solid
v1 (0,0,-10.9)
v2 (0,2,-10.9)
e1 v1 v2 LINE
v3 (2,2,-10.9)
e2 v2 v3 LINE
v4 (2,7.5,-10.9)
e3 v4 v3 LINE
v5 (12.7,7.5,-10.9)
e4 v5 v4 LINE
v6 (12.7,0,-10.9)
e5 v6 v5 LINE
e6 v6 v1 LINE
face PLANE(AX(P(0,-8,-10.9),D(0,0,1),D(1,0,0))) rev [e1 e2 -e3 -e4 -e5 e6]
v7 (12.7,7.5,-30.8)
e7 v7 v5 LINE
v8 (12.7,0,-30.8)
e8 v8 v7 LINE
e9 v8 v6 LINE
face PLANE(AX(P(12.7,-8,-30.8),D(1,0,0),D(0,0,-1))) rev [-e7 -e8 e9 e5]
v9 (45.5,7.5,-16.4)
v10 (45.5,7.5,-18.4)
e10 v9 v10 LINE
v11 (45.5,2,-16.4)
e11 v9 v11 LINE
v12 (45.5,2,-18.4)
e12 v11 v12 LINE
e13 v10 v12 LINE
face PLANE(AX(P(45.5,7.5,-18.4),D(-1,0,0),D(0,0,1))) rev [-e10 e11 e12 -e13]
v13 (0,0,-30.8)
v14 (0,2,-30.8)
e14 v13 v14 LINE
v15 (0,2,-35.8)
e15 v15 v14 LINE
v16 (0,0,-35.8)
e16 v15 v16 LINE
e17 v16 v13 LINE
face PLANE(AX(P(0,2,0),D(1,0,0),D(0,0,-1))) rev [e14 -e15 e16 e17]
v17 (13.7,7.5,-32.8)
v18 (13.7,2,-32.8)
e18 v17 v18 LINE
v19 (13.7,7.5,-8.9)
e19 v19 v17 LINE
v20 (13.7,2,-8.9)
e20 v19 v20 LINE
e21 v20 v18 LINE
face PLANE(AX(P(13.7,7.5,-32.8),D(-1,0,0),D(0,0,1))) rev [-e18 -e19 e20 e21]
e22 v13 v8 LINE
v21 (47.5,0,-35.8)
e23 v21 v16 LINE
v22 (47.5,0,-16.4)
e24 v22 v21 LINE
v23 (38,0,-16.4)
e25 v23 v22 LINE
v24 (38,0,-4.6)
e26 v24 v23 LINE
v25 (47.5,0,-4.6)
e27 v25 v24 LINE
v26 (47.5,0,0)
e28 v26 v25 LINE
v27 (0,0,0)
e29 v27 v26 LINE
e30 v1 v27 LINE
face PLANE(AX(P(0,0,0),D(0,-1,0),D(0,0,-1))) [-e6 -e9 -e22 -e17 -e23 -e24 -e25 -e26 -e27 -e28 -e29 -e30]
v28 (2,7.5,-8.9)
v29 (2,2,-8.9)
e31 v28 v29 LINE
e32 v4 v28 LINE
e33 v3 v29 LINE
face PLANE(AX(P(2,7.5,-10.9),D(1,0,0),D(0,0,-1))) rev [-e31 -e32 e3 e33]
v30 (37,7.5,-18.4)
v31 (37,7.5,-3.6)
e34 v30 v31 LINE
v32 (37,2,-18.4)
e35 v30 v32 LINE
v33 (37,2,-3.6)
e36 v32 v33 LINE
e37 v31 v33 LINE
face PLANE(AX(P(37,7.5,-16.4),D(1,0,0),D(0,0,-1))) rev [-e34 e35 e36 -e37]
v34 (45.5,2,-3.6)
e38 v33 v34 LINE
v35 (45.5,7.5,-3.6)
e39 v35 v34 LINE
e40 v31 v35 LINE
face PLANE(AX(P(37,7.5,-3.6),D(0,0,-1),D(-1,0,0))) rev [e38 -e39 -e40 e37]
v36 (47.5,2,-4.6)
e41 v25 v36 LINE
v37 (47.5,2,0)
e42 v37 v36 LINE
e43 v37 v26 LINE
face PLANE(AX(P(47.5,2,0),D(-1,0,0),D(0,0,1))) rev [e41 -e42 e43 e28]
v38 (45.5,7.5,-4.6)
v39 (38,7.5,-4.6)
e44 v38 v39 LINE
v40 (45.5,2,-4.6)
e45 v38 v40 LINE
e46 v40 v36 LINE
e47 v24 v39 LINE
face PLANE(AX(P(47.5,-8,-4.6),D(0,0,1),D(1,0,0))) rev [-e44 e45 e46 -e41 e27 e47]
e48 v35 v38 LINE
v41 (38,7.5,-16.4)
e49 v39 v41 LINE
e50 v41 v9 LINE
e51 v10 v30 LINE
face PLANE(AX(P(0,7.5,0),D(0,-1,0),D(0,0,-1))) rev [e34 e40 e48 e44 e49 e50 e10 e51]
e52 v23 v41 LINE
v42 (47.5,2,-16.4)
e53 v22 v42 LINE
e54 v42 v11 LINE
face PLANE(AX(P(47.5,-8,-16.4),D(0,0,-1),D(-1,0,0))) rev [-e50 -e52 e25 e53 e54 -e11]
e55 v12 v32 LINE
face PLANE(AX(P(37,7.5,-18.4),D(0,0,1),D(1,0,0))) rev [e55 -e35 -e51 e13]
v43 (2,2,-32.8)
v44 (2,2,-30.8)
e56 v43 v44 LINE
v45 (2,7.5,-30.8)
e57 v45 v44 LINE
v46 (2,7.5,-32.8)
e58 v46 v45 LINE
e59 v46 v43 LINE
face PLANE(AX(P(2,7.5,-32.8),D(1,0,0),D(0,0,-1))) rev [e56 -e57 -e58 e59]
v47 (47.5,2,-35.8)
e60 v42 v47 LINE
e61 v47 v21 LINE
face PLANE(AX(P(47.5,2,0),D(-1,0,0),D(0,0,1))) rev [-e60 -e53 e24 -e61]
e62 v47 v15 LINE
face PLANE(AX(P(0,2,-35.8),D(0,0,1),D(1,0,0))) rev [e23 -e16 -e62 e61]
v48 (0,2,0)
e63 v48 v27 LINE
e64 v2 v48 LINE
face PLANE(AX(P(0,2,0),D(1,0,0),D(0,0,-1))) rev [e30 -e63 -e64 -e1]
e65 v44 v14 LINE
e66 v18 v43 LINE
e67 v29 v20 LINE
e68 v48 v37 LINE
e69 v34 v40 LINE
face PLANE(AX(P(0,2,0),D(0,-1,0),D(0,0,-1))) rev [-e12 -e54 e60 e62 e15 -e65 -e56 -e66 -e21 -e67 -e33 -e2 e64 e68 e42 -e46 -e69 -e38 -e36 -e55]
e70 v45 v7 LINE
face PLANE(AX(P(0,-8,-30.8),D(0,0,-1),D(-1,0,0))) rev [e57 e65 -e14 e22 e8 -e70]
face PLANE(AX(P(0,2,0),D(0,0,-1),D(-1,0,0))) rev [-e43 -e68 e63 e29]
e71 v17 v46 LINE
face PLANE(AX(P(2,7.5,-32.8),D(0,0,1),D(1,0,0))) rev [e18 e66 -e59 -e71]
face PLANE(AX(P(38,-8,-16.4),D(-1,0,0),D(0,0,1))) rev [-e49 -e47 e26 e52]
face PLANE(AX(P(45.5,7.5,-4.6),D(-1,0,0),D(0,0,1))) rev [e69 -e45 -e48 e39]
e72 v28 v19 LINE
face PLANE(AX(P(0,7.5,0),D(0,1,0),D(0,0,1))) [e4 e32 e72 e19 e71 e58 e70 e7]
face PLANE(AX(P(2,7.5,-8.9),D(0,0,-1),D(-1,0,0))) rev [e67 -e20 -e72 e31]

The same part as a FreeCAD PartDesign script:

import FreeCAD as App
import Part
import Sketcher


def add_polygon(sketch, points):
    """Adds a closed chain of lines whose ends are joined by coincident constraints."""
    first, n = sketch.GeometryCount, len(points)
    for a, b in zip(points, points[1:] + points[:1]):
        sketch.addGeometry(Part.LineSegment(App.Vector(*a, 0), App.Vector(*b, 0)), False)
    for i in range(n):
        sketch.addConstraint(Sketcher.Constraint("Coincident", first + i, 2, first + (i + 1) % n, 1))

doc = App.newDocument("Part")
params = doc.addObject("Spreadsheet::Sheet", "Params")
for row, (alias, value) in enumerate([
    ("sketch1_width", "47.5 mm"),
    ("sketch1_height", "35.8 mm"),
    ("pad1_length", "2 mm"),
    ("sketch2_width", "9.5 mm"),
    ("sketch2_height", "11.8 mm"),
    ("pocket1_length", "10 mm"),
    ("sketch3_width", "12.7 mm"),
    ("sketch3_height", "19.9 mm"),
    ("pocket2_length", "10 mm"),
    ("sketch4_width", "1 mm"),
    ("sketch4_height", "11.8 mm"),
    ("pad2_length", "5.5 mm"),
    ("sketch5_height", "1 mm"),
    ("sketch5_width", "8.5 mm"),
    ("pad3_length", "5.5 mm"),
    ("sketch6_height", "2 mm"),
    ("sketch6_width", "8.5 mm"),
    ("pad4_length", "5.5 mm"),
    ("sketch7_height", "2 mm"),
    ("sketch7_width", "10.7 mm"),
    ("pad5_length", "5.5 mm"),
    ("sketch8_width", "1 mm"),
    ("sketch8_height", "21.9 mm"),
    ("pad6_length", "5.5 mm"),
    ("sketch9_height", "2 mm"),
    ("sketch9_width", "11.7 mm"),
    ("pad7_length", "5.5 mm"),
], start=1):
    params.set(f"A{row}", alias)
    params.set(f"B{row}", "=" + value)
    params.setAlias(f"B{row}", alias)

body = doc.addObject("PartDesign::Body", "Body")

# Sketch on XZ plane
sketch1 = doc.addObject("Sketcher::SketchObject", "Sketch")
body.addObject(sketch1)
sketch1.AttachmentSupport = (doc.XZ_Plane, [""])
sketch1.MapMode = "FlatFace"
add_polygon(sketch1, [(0, -36), (0, 0), (48, 0), (48, -36)])  # lines 0-3
sketch1.addConstraint([
    Sketcher.Constraint("Vertical", 0),
    Sketcher.Constraint("Horizontal", 1),
    Sketcher.Constraint("Vertical", 2),
    Sketcher.Constraint("Horizontal", 3),
    Sketcher.Constraint("Coincident", 0, 2, -1, 1),
    Sketcher.Constraint("DistanceX", 1, 1, 1, 2, 47.5),
    Sketcher.Constraint("DistanceY", 0, 1, 0, 2, 35.8),
])
sketch1.setExpression("Constraints[9]", "Params.sketch1_width")
sketch1.setExpression("Constraints[10]", "Params.sketch1_height")
pad1 = doc.addObject("PartDesign::Pad", "Pad")
body.addObject(pad1)
pad1.Profile = sketch1
pad1.setExpression("Length", "Params.pad1_length")
pad1.Reversed = True

# Sketch on XZ plane
sketch2 = doc.addObject("Sketcher::SketchObject", "Sketch001")
body.addObject(sketch2)
sketch2.AttachmentSupport = (doc.XZ_Plane, [""])
sketch2.MapMode = "FlatFace"
sketch2.AttachmentOffset = App.Placement(App.Vector(0, 0, -2), App.Rotation())
add_polygon(sketch2, [(38, -16), (38, -5), (48, -5), (48, -16)])  # lines 0-3
sketch2.addConstraint([
    Sketcher.Constraint("Vertical", 0),
    Sketcher.Constraint("Horizontal", 1),
    Sketcher.Constraint("Vertical", 2),
    Sketcher.Constraint("Horizontal", 3),
    Sketcher.Constraint("DistanceX", 1, 1, 1, 2, 9.5),
    Sketcher.Constraint("DistanceY", 0, 1, 0, 2, 11.8),
    Sketcher.Constraint("DistanceX", -1, 1, 0, 2, 38.0),
    Sketcher.Constraint("DistanceY", 0, 2, -1, 1, 4.6),
])
sketch2.setExpression("Constraints[8]", "Params.sketch2_width")
sketch2.setExpression("Constraints[9]", "Params.sketch2_height")
pocket1 = doc.addObject("PartDesign::Pocket", "Pocket")
body.addObject(pocket1)
pocket1.Profile = sketch2
pocket1.setExpression("Length", "Params.pocket1_length")
pocket1.Reversed = True

# Sketch on XZ plane
sketch3 = doc.addObject("Sketcher::SketchObject", "Sketch002")
body.addObject(sketch3)
sketch3.AttachmentSupport = (doc.XZ_Plane, [""])
sketch3.MapMode = "FlatFace"
sketch3.AttachmentOffset = App.Placement(App.Vector(0, 0, -2), App.Rotation())
add_polygon(sketch3, [(0, -31), (0, -11), (13, -11), (13, -31)])  # lines 0-3
sketch3.addConstraint([
    Sketcher.Constraint("Vertical", 0),
    Sketcher.Constraint("Horizontal", 1),
    Sketcher.Constraint("Vertical", 2),
    Sketcher.Constraint("Horizontal", 3),
    Sketcher.Constraint("PointOnObject", 0, 2, -2),
    Sketcher.Constraint("DistanceX", 1, 1, 1, 2, 12.7),
    Sketcher.Constraint("DistanceY", 0, 1, 0, 2, 19.9),
    Sketcher.Constraint("DistanceY", 0, 2, -1, 1, 10.9),
])
sketch3.setExpression("Constraints[9]", "Params.sketch3_width")
sketch3.setExpression("Constraints[10]", "Params.sketch3_height")
pocket2 = doc.addObject("PartDesign::Pocket", "Pocket001")
body.addObject(pocket2)
pocket2.Profile = sketch3
pocket2.setExpression("Length", "Params.pocket2_length")
pocket2.Reversed = True

# Sketch on XZ plane
sketch4 = doc.addObject("Sketcher::SketchObject", "Sketch003")
body.addObject(sketch4)
sketch4.AttachmentSupport = (doc.XZ_Plane, [""])
sketch4.MapMode = "FlatFace"
sketch4.AttachmentOffset = App.Placement(App.Vector(0, 0, -2), App.Rotation())
add_polygon(sketch4, [(37, -16.4), (37, -4.6), (38, -4.6), (38, -16.4)])  # lines 0-3
sketch4.addConstraint([
    Sketcher.Constraint("Vertical", 0),
    Sketcher.Constraint("Horizontal", 1),
    Sketcher.Constraint("Vertical", 2),
    Sketcher.Constraint("Horizontal", 3),
    Sketcher.Constraint("DistanceX", 1, 1, 1, 2, 1.0),
    Sketcher.Constraint("DistanceY", 0, 1, 0, 2, 11.8),
    Sketcher.Constraint("DistanceX", -1, 1, 0, 2, 37.0),
    Sketcher.Constraint("DistanceY", 0, 2, -1, 1, 4.6),
])
sketch4.setExpression("Constraints[8]", "Params.sketch4_width")
sketch4.setExpression("Constraints[9]", "Params.sketch4_height")
pad2 = doc.addObject("PartDesign::Pad", "Pad001")
body.addObject(pad2)
pad2.Profile = sketch4
pad2.setExpression("Length", "Params.pad2_length")
pad2.Reversed = True

# Sketch on XZ plane
sketch5 = doc.addObject("Sketcher::SketchObject", "Sketch004")
body.addObject(sketch5)
sketch5.AttachmentSupport = (doc.XZ_Plane, [""])
sketch5.MapMode = "FlatFace"
sketch5.AttachmentOffset = App.Placement(App.Vector(0, 0, -2), App.Rotation())
add_polygon(sketch5, [(37, -4.6), (37, -3.6), (45.5, -3.6), (45.5, -4.6)])  # lines 0-3
sketch5.addConstraint([
    Sketcher.Constraint("Vertical", 0),
    Sketcher.Constraint("Horizontal", 1),
    Sketcher.Constraint("Vertical", 2),
    Sketcher.Constraint("Horizontal", 3),
    Sketcher.Constraint("DistanceY", 0, 1, 0, 2, 1.0),
    Sketcher.Constraint("DistanceX", 1, 1, 1, 2, 8.5),
    Sketcher.Constraint("DistanceX", -1, 1, 0, 2, 37.0),
    Sketcher.Constraint("DistanceY", 0, 2, -1, 1, 3.6),
])
sketch5.setExpression("Constraints[8]", "Params.sketch5_height")
sketch5.setExpression("Constraints[9]", "Params.sketch5_width")
pad3 = doc.addObject("PartDesign::Pad", "Pad002")
body.addObject(pad3)
pad3.Profile = sketch5
pad3.setExpression("Length", "Params.pad3_length")
pad3.Reversed = True

# Sketch on XZ plane
sketch6 = doc.addObject("Sketcher::SketchObject", "Sketch005")
body.addObject(sketch6)
sketch6.AttachmentSupport = (doc.XZ_Plane, [""])
sketch6.MapMode = "FlatFace"
sketch6.AttachmentOffset = App.Placement(App.Vector(0, 0, -2), App.Rotation())
add_polygon(sketch6, [(37, -18.4), (37, -16.4), (45.5, -16.4), (45.5, -18.4)])  # lines 0-3
sketch6.addConstraint([
    Sketcher.Constraint("Vertical", 0),
    Sketcher.Constraint("Horizontal", 1),
    Sketcher.Constraint("Vertical", 2),
    Sketcher.Constraint("Horizontal", 3),
    Sketcher.Constraint("DistanceY", 0, 1, 0, 2, 2.0),
    Sketcher.Constraint("DistanceX", 1, 1, 1, 2, 8.5),
    Sketcher.Constraint("DistanceX", -1, 1, 0, 2, 37.0),
    Sketcher.Constraint("DistanceY", 0, 2, -1, 1, 16.4),
])
sketch6.setExpression("Constraints[8]", "Params.sketch6_height")
sketch6.setExpression("Constraints[9]", "Params.sketch6_width")
pad4 = doc.addObject("PartDesign::Pad", "Pad003")
body.addObject(pad4)
pad4.Profile = sketch6
pad4.setExpression("Length", "Params.pad4_length")
pad4.Reversed = True

# Sketch on XZ plane
sketch7 = doc.addObject("Sketcher::SketchObject", "Sketch006")
body.addObject(sketch7)
sketch7.AttachmentSupport = (doc.XZ_Plane, [""])
sketch7.MapMode = "FlatFace"
sketch7.AttachmentOffset = App.Placement(App.Vector(0, 0, -2), App.Rotation())
add_polygon(sketch7, [(2, -32.8), (2, -30.8), (12.7, -30.8), (12.7, -32.8)])  # lines 0-3
sketch7.addConstraint([
    Sketcher.Constraint("Vertical", 0),
    Sketcher.Constraint("Horizontal", 1),
    Sketcher.Constraint("Vertical", 2),
    Sketcher.Constraint("Horizontal", 3),
    Sketcher.Constraint("DistanceY", 0, 1, 0, 2, 2.0),
    Sketcher.Constraint("DistanceX", 1, 1, 1, 2, 10.7),
    Sketcher.Constraint("DistanceX", -1, 1, 0, 2, 2.0),
    Sketcher.Constraint("DistanceY", 0, 2, -1, 1, 30.8),
])
sketch7.setExpression("Constraints[8]", "Params.sketch7_height")
sketch7.setExpression("Constraints[9]", "Params.sketch7_width")
pad5 = doc.addObject("PartDesign::Pad", "Pad004")
body.addObject(pad5)
pad5.Profile = sketch7
pad5.setExpression("Length", "Params.pad5_length")
pad5.Reversed = True

# Sketch on XZ plane
sketch8 = doc.addObject("Sketcher::SketchObject", "Sketch007")
body.addObject(sketch8)
sketch8.AttachmentSupport = (doc.XZ_Plane, [""])
sketch8.MapMode = "FlatFace"
sketch8.AttachmentOffset = App.Placement(App.Vector(0, 0, -2), App.Rotation())
add_polygon(sketch8, [(12.7, -32.8), (12.7, -10.9), (13.7, -10.9), (13.7, -32.8)])  # lines 0-3
sketch8.addConstraint([
    Sketcher.Constraint("Vertical", 0),
    Sketcher.Constraint("Horizontal", 1),
    Sketcher.Constraint("Vertical", 2),
    Sketcher.Constraint("Horizontal", 3),
    Sketcher.Constraint("DistanceX", 1, 1, 1, 2, 1.0),
    Sketcher.Constraint("DistanceY", 0, 1, 0, 2, 21.9),
    Sketcher.Constraint("DistanceX", -1, 1, 0, 2, 12.7),
    Sketcher.Constraint("DistanceY", 0, 2, -1, 1, 10.9),
])
sketch8.setExpression("Constraints[8]", "Params.sketch8_width")
sketch8.setExpression("Constraints[9]", "Params.sketch8_height")
pad6 = doc.addObject("PartDesign::Pad", "Pad005")
body.addObject(pad6)
pad6.Profile = sketch8
pad6.setExpression("Length", "Params.pad6_length")
pad6.Reversed = True

# Sketch on XZ plane
sketch9 = doc.addObject("Sketcher::SketchObject", "Sketch008")
body.addObject(sketch9)
sketch9.AttachmentSupport = (doc.XZ_Plane, [""])
sketch9.MapMode = "FlatFace"
sketch9.AttachmentOffset = App.Placement(App.Vector(0, 0, -2), App.Rotation())
add_polygon(sketch9, [(2, -10.9), (2, -8.9), (13.7, -8.9), (13.7, -10.9)])  # lines 0-3
sketch9.addConstraint([
    Sketcher.Constraint("Vertical", 0),
    Sketcher.Constraint("Horizontal", 1),
    Sketcher.Constraint("Vertical", 2),
    Sketcher.Constraint("Horizontal", 3),
    Sketcher.Constraint("DistanceY", 0, 1, 0, 2, 2.0),
    Sketcher.Constraint("DistanceX", 1, 1, 1, 2, 11.7),
    Sketcher.Constraint("DistanceX", -1, 1, 0, 2, 2.0),
    Sketcher.Constraint("DistanceY", 0, 2, -1, 1, 8.9),
])
sketch9.setExpression("Constraints[8]", "Params.sketch9_height")
sketch9.setExpression("Constraints[9]", "Params.sketch9_width")
pad7 = doc.addObject("PartDesign::Pad", "Pad006")
body.addObject(pad7)
pad7.Profile = sketch9
pad7.setExpression("Length", "Params.pad7_length")
pad7.Reversed = True

doc.recompute()
